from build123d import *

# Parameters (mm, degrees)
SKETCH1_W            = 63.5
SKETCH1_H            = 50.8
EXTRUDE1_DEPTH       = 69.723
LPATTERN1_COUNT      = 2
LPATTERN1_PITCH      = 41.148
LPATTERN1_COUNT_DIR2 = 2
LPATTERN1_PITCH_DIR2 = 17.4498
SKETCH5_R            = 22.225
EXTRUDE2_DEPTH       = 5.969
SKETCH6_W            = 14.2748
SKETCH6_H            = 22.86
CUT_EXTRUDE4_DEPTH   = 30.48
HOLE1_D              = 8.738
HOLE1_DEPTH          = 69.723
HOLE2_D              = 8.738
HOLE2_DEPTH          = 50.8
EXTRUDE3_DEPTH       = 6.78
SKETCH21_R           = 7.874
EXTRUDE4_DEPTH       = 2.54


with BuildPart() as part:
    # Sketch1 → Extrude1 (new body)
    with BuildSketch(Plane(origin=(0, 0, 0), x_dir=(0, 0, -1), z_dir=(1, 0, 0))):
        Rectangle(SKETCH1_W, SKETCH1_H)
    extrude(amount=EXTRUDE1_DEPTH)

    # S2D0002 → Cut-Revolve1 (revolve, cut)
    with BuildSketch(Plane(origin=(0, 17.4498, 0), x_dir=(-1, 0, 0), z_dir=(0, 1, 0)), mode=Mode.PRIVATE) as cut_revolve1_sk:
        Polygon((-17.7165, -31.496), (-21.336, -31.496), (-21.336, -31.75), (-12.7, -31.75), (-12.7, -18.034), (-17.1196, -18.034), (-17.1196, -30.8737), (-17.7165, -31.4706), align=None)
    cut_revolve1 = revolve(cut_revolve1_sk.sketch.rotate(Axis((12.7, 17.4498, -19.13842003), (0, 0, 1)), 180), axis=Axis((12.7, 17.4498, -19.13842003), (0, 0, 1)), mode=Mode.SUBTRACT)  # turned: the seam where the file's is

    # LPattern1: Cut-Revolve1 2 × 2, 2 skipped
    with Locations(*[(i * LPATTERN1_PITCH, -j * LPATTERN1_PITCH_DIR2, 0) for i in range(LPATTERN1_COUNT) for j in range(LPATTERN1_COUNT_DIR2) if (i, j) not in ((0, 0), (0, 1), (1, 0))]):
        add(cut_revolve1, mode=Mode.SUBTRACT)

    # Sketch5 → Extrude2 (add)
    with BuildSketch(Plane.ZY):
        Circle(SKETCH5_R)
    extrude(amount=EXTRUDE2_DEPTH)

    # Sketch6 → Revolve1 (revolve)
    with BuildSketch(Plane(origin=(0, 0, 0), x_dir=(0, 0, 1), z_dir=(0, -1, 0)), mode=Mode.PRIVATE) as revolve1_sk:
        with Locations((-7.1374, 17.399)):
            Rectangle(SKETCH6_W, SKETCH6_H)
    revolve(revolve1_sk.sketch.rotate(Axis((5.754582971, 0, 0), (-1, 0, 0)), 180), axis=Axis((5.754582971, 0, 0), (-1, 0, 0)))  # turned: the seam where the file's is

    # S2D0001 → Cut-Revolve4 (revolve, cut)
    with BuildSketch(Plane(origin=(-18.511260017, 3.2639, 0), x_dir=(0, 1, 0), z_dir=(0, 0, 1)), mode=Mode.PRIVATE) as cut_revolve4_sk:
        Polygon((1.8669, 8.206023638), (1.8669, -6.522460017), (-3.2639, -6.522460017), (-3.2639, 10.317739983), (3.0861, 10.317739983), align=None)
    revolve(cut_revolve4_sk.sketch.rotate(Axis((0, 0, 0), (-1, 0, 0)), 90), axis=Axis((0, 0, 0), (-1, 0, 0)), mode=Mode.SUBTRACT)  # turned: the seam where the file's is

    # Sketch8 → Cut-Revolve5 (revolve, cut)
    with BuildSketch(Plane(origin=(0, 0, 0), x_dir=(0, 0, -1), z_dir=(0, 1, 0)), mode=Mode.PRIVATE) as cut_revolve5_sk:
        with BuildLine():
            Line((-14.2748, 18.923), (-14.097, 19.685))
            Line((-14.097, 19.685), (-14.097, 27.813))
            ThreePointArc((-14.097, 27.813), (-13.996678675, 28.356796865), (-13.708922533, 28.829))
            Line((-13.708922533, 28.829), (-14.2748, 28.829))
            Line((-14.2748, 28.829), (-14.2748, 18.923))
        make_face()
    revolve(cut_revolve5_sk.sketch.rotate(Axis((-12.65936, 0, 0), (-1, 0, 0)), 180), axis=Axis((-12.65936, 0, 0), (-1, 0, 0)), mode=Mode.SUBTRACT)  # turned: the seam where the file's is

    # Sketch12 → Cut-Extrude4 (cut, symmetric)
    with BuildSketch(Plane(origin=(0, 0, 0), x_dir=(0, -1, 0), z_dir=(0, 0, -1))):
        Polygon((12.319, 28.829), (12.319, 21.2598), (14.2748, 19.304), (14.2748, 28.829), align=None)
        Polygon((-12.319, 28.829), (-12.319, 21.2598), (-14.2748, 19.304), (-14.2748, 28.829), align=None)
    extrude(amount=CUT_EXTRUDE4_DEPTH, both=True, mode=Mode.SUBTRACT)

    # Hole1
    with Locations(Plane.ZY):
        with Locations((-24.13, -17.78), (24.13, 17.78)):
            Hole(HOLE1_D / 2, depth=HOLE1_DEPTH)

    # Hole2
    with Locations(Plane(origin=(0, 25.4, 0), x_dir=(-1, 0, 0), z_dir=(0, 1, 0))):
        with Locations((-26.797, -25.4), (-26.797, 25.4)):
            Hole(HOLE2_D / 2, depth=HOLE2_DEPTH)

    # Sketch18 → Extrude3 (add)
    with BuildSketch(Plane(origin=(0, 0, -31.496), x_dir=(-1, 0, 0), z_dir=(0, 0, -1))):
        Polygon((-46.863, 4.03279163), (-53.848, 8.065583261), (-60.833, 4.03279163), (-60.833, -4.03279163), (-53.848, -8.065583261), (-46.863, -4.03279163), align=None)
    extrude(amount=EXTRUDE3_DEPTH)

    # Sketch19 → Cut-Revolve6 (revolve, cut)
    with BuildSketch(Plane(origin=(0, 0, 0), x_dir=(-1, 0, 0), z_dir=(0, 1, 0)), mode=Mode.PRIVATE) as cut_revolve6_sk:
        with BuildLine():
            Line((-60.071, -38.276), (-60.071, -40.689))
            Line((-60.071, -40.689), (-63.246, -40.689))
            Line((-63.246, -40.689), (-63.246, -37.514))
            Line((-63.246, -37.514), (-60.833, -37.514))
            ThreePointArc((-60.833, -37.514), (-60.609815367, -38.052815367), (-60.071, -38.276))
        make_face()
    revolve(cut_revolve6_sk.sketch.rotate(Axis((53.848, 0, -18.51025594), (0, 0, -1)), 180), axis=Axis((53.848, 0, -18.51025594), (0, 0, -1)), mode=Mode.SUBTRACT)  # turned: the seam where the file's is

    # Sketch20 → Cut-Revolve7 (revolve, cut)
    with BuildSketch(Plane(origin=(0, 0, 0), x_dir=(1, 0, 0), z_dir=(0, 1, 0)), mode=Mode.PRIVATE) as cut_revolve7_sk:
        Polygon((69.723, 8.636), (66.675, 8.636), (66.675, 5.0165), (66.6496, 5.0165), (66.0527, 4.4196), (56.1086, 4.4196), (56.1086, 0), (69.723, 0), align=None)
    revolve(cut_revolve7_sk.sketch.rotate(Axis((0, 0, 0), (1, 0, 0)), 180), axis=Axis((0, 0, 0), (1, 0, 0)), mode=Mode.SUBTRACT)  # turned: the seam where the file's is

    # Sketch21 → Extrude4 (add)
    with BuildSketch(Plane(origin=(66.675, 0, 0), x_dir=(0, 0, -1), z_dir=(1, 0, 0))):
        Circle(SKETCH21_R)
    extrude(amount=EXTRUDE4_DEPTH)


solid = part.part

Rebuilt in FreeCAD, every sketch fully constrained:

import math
import FreeCAD as App
import Part
import Sketcher
Q = App.Units.Quantity

doc = App.newDocument("Part")
body = doc.addObject("PartDesign::Body", "Body")

# Sketch on YZ plane
sketch1 = doc.addObject("Sketcher::SketchObject", "Sketch")
body.addObject(sketch1)
sketch1.AttachmentSupport = (doc.YZ_Plane, [""])
sketch1.MapMode = "FlatFace"
sketch1.addGeometry(Part.LineSegment(App.Vector(25, 32, 0), App.Vector(-25, 32, 0)), False)
sketch1.addGeometry(Part.LineSegment(App.Vector(-25, 32, 0), App.Vector(-25, -32, 0)), False)
sketch1.addGeometry(Part.LineSegment(App.Vector(-25, -32, 0), App.Vector(25, -32, 0)), False)
sketch1.addGeometry(Part.LineSegment(App.Vector(25, -32, 0), App.Vector(25, 32, 0)), False)
sketch1.addConstraint(Sketcher.Constraint("Coincident", 0, 2, 1, 1))
sketch1.addConstraint(Sketcher.Constraint("Coincident", 1, 2, 2, 1))
sketch1.addConstraint(Sketcher.Constraint("Coincident", 2, 2, 3, 1))
sketch1.addConstraint(Sketcher.Constraint("Coincident", 3, 2, 0, 1))
sketch1.addConstraint(Sketcher.Constraint("Horizontal", 0))
sketch1.addConstraint(Sketcher.Constraint("Vertical", 1))
sketch1.addConstraint(Sketcher.Constraint("Horizontal", 2))
sketch1.addConstraint(Sketcher.Constraint("Vertical", 3))
sketch1.addConstraint(Sketcher.Constraint("Symmetric", 0, 2, 2, 2, -1, 1))
sketch1.addConstraint(Sketcher.Constraint("DistanceX", 0, 2, 0, 1, Q("2 in")))
sketch1.addConstraint(Sketcher.Constraint("DistanceY", 1, 2, 1, 1, Q("2.5 in")))
pad1 = doc.addObject("PartDesign::Pad", "Pad")
body.addObject(pad1)
pad1.Profile = sketch1
pad1.Length = Q("2.745 in")

# Sketch on XZ plane
sketch2 = doc.addObject("Sketcher::SketchObject", "Sketch001")
body.addObject(sketch2)
sketch2.AttachmentSupport = (doc.XZ_Plane, [""])
sketch2.MapMode = "FlatFace"
sketch2.AttachmentOffset = App.Placement(App.Vector(0, 0, -0.687 * 25.4), App.Rotation())
sketch2.addGeometry(Part.LineSegment(App.Vector(17.716, -31.496, 0), App.Vector(21.336, -31.496, 0)), False)
sketch2.addGeometry(Part.LineSegment(App.Vector(21.336, -31.496, 0), App.Vector(21.336, -31.75, 0)), False)
sketch2.addGeometry(Part.LineSegment(App.Vector(21.336, -31.75, 0), App.Vector(12.7, -31.75, 0)), False)
sketch2.addGeometry(Part.LineSegment(App.Vector(12.7, -31.75, 0), App.Vector(12.7, -18.034, 0)), False)
sketch2.addGeometry(Part.LineSegment(App.Vector(12.7, -18.034, 0), App.Vector(17.12, -18.034, 0)), False)
sketch2.addGeometry(Part.LineSegment(App.Vector(17.12, -18.034, 0), App.Vector(17.12, -30.874, 0)), False)
sketch2.addGeometry(Part.LineSegment(App.Vector(17.12, -30.874, 0), App.Vector(17.716, -31.471, 0)), False)
sketch2.addGeometry(Part.LineSegment(App.Vector(17.716, -31.471, 0), App.Vector(17.716, -31.496, 0)), False)
sketch2.addGeometry(Part.LineSegment(App.Vector(12.7, -31.75, 0), App.Vector(12.7, -18.034, 0)), True)  # axis
sketch2.addConstraint(Sketcher.Constraint("Coincident", 0, 2, 1, 1))
sketch2.addConstraint(Sketcher.Constraint("Coincident", 1, 2, 2, 1))
sketch2.addConstraint(Sketcher.Constraint("Coincident", 2, 2, 3, 1))
sketch2.addConstraint(Sketcher.Constraint("Coincident", 3, 2, 4, 1))
sketch2.addConstraint(Sketcher.Constraint("Coincident", 4, 2, 5, 1))
sketch2.addConstraint(Sketcher.Constraint("Coincident", 5, 2, 6, 1))
sketch2.addConstraint(Sketcher.Constraint("Coincident", 6, 2, 7, 1))
sketch2.addConstraint(Sketcher.Constraint("Coincident", 7, 2, 0, 1))
sketch2.addConstraint(Sketcher.Constraint("Horizontal", 0))
sketch2.addConstraint(Sketcher.Constraint("Vertical", 1))
sketch2.addConstraint(Sketcher.Constraint("Horizontal", 2))
sketch2.addConstraint(Sketcher.Constraint("Vertical", 3))
sketch2.addConstraint(Sketcher.Constraint("Horizontal", 4))
sketch2.addConstraint(Sketcher.Constraint("Vertical", 5))
sketch2.addConstraint(Sketcher.Constraint("Vertical", 7))
sketch2.addConstraint(Sketcher.Constraint("Vertical", 8))
sketch2.addConstraint(Sketcher.Constraint("Coincident", 8, 1, 2, 2))
sketch2.addConstraint(Sketcher.Constraint("Horizontal", 4, 2, 8, 2))
sketch2.addConstraint(Sketcher.Constraint("Angle", 6, Q("-45 deg")))
sketch2.addConstraint(Sketcher.Constraint("DistanceX", 2, 2, 2, 1, Q("0.34 in")))
sketch2.addConstraint(Sketcher.Constraint("DistanceY", 1, 2, 1, 1, Q("0.01 in")))
sketch2.addConstraint(Sketcher.Constraint("DistanceY", 3, 1, 3, 2, Q("0.54 in")))
sketch2.addConstraint(Sketcher.Constraint("DistanceX", -1, 1, 2, 2, Q("0.5 in")))
sketch2.addConstraint(Sketcher.Constraint("DistanceX", 4, 1, 4, 2, Q("0.174 in")))
sketch2.addConstraint(Sketcher.Constraint("DistanceY", 7, 2, 7, 1, Q("0.001 in")))
sketch2.addConstraint(Sketcher.Constraint("DistanceY", 0, 2, -1, 1, Q("1.24 in")))
sketch2.addConstraint(Sketcher.Constraint("DistanceX", 0, 1, 0, 2, Q("0.1425 in")))
groove = doc.addObject("PartDesign::Groove", "Groove")
body.addObject(groove)
groove.Profile = sketch2
groove.ReferenceAxis = (sketch2, ["Axis0"])
groove.Angle = 360
doc.recompute()

datumline = doc.addObject("PartDesign::Line", "DatumLine")
body.addObject(datumline)
datumline.Placement = App.Placement(App.Vector(0, 0, 0), App.Rotation(App.Vector(0, 0, 1), App.Vector(0.920637496, -0.390418494, 0)))
linearpattern = doc.addObject("PartDesign::LinearPattern", "LinearPattern")
body.addObject(linearpattern)
linearpattern.Originals = [groove]
linearpattern.Direction = (datumline, [""])
linearpattern.Mode = "offset"
linearpattern.Offset = 44.695116
linearpattern.Occurrences = 2
body.Tip = linearpattern

# Sketch on YZ plane
sketch3 = doc.addObject("Sketcher::SketchObject", "Sketch002")
body.addObject(sketch3)
sketch3.AttachmentSupport = (doc.YZ_Plane, [""])
sketch3.MapMode = "FlatFace"
sketch3.addGeometry(Part.Circle(App.Vector(0, 0, 0), App.Vector(0, 0, 1), 22), False)
sketch3.addConstraint(Sketcher.Constraint("Coincident", 0, 3, -1, 1))
sketch3.addConstraint(Sketcher.Constraint("Diameter", 0, Q("1.75 in")))
pad2 = doc.addObject("PartDesign::Pad", "Pad001")
body.addObject(pad2)
pad2.Profile = sketch3
pad2.Length = Q("0.235 in")
pad2.Reversed = True

# Sketch on XZ plane
sketch4 = doc.addObject("Sketcher::SketchObject", "Sketch003")
body.addObject(sketch4)
sketch4.AttachmentSupport = (doc.XZ_Plane, [""])
sketch4.MapMode = "FlatFace"
sketch4.addGeometry(Part.LineSegment(App.Vector(-29, -14, 0), App.Vector(-6, -14, 0)), False)
sketch4.addGeometry(Part.LineSegment(App.Vector(-6, -14, 0), App.Vector(-6, 0, 0)), False)
sketch4.addGeometry(Part.LineSegment(App.Vector(-6, 0, 0), App.Vector(-29, 0, 0)), False)
sketch4.addGeometry(Part.LineSegment(App.Vector(-29, 0, 0), App.Vector(-29, -14, 0)), False)
sketch4.addConstraint(Sketcher.Constraint("Coincident", 0, 2, 1, 1))
sketch4.addConstraint(Sketcher.Constraint("Coincident", 1, 2, 2, 1))
sketch4.addConstraint(Sketcher.Constraint("Coincident", 2, 2, 3, 1))
sketch4.addConstraint(Sketcher.Constraint("Coincident", 3, 2, 0, 1))
sketch4.addConstraint(Sketcher.Constraint("Horizontal", 0))
sketch4.addConstraint(Sketcher.Constraint("Vertical", 1))
sketch4.addConstraint(Sketcher.Constraint("Horizontal", 2))
sketch4.addConstraint(Sketcher.Constraint("Vertical", 3))
sketch4.addConstraint(Sketcher.Constraint("PointOnObject", 1, 2, -1))
sketch4.addConstraint(Sketcher.Constraint("DistanceX", 0, 1, 0, 2, Q("0.9 in")))
sketch4.addConstraint(Sketcher.Constraint("DistanceY", 1, 1, 1, 2, Q("0.562 in")))
sketch4.addConstraint(Sketcher.Constraint("DistanceX", 0, 2, -1, 1, Q("0.235 in")))
revolution = doc.addObject("PartDesign::Revolution", "Revolution")
body.addObject(revolution)
revolution.Profile = sketch4
revolution.ReferenceAxis = (sketch4, ["H_Axis"])
revolution.Angle = 360

# Sketch on XY plane
sketch5 = doc.addObject("Sketcher::SketchObject", "Sketch004")
body.addObject(sketch5)
sketch5.AttachmentSupport = (doc.XY_Plane, [""])
sketch5.MapMode = "FlatFace"
sketch5.addGeometry(Part.LineSegment(App.Vector(-12, 5.1, 0), App.Vector(-26.7, 5.1, 0)), False)
sketch5.addGeometry(Part.LineSegment(App.Vector(-26.7, 5.1, 0), App.Vector(-28.8, 6.3, 0)), False)
sketch5.addGeometry(Part.LineSegment(App.Vector(-28.8, 6.3, 0), App.Vector(-28.8, 0, 0)), False)
sketch5.addGeometry(Part.LineSegment(App.Vector(-28.8, 0, 0), App.Vector(-12, 0, 0)), False)
sketch5.addGeometry(Part.LineSegment(App.Vector(-12, 0, 0), App.Vector(-12, 5.1, 0)), False)
sketch5.addConstraint(Sketcher.Constraint("Coincident", 0, 2, 1, 1))
sketch5.addConstraint(Sketcher.Constraint("Coincident", 1, 2, 2, 1))
sketch5.addConstraint(Sketcher.Constraint("Coincident", 2, 2, 3, 1))
sketch5.addConstraint(Sketcher.Constraint("Coincident", 3, 2, 4, 1))
sketch5.addConstraint(Sketcher.Constraint("Coincident", 4, 2, 0, 1))
sketch5.addConstraint(Sketcher.Constraint("Horizontal", 0))
sketch5.addConstraint(Sketcher.Constraint("Vertical", 2))
sketch5.addConstraint(Sketcher.Constraint("Horizontal", 3))
sketch5.addConstraint(Sketcher.Constraint("Vertical", 4))
sketch5.addConstraint(Sketcher.Constraint("PointOnObject", 2, 2, -1))
sketch5.addConstraint(Sketcher.Constraint("Angle", 1, Q("150 deg")))
sketch5.addConstraint(Sketcher.Constraint("DistanceY", 2, 2, 2, 1, Q("0.25 in")))
sketch5.addConstraint(Sketcher.Constraint("DistanceX", 3, 1, 3, 2, Q("0.663 in")))
sketch5.addConstraint(Sketcher.Constraint("DistanceY", 4, 1, 4, 2, Q("0.202 in")))
sketch5.addConstraint(Sketcher.Constraint("DistanceX", 1, 2, -1, 1, Q("1.135 in")))
groove2 = doc.addObject("PartDesign::Groove", "Groove001")
body.addObject(groove2)
groove2.Profile = sketch5
groove2.ReferenceAxis = (sketch5, ["H_Axis"])
groove2.Angle = 360

# Sketch on XZ plane
sketch6 = doc.addObject("Sketcher::SketchObject", "Sketch005")
body.addObject(sketch6)
sketch6.AttachmentSupport = (doc.XZ_Plane, [""])
sketch6.MapMode = "FlatFace"
sketch6.addGeometry(Part.LineSegment(App.Vector(-18.9, 14.3, 0), App.Vector(-19.7, 14.1, 0)), False)
sketch6.addGeometry(Part.LineSegment(App.Vector(-19.7, 14.1, 0), App.Vector(-27.8, 14.1, 0)), False)
sketch6.addGeometry(Part.ArcOfCircle(Part.Circle(App.Vector(-27.8, 12.6, 0), App.Vector(0, 0, 1), 1.5), math.radians(90), math.radians(132)), False)
sketch6.addGeometry(Part.LineSegment(App.Vector(-28.8, 13.7, 0), App.Vector(-28.8, 14.3, 0)), False)
sketch6.addGeometry(Part.LineSegment(App.Vector(-28.8, 14.3, 0), App.Vector(-18.9, 14.3, 0)), False)
sketch6.addConstraint(Sketcher.Constraint("Coincident", 0, 2, 1, 1))
sketch6.addConstraint(Sketcher.Constraint("Tangent", 1, 2, 2, 1))
sketch6.addConstraint(Sketcher.Constraint("Coincident", 2, 2, 3, 1))
sketch6.addConstraint(Sketcher.Constraint("Coincident", 3, 2, 4, 1))
sketch6.addConstraint(Sketcher.Constraint("Coincident", 4, 2, 0, 1))
sketch6.addConstraint(Sketcher.Constraint("Horizontal", 1))
sketch6.addConstraint(Sketcher.Constraint("Vertical", 3))
sketch6.addConstraint(Sketcher.Constraint("Horizontal", 4))
sketch6.addConstraint(Sketcher.Constraint("Radius", 2, Q("0.06 in")))
sketch6.addConstraint(Sketcher.Constraint("DistanceX", 1, 2, 1, 1, Q("0.32 in")))
sketch6.addConstraint(Sketcher.Constraint("DistanceX", 4, 1, 4, 2, Q("0.39 in")))
sketch6.addConstraint(Sketcher.Constraint("DistanceX", 2, 2, 1, 2, Q("0.04 in")))
sketch6.addConstraint(Sketcher.Constraint("DistanceX", 2, 3, -1, 1, Q("1.095 in")))
sketch6.addConstraint(Sketcher.Constraint("DistanceY", -1, 1, 2, 3, Q("0.495 in")))
sketch6.addConstraint(Sketcher.Constraint("DistanceY", -1, 1, 3, 2, Q("0.562 in")))
groove3 = doc.addObject("PartDesign::Groove", "Groove002")
body.addObject(groove3)
groove3.Profile = sketch6
groove3.ReferenceAxis = (sketch6, ["H_Axis"])
groove3.Angle = 360

# Sketch on XY plane
sketch7 = doc.addObject("Sketcher::SketchObject", "Sketch006")
body.addObject(sketch7)
sketch7.AttachmentSupport = (doc.XY_Plane, [""])
sketch7.MapMode = "FlatFace"
sketch7.addGeometry(Part.LineSegment(App.Vector(-28.8, -12.3, 0), App.Vector(-21.3, -12.3, 0)), False)
sketch7.addGeometry(Part.LineSegment(App.Vector(-21.3, -12.3, 0), App.Vector(-19.3, -14.3, 0)), False)
sketch7.addGeometry(Part.LineSegment(App.Vector(-19.3, -14.3, 0), App.Vector(-28.8, -14.3, 0)), False)
sketch7.addGeometry(Part.LineSegment(App.Vector(-28.8, -14.3, 0), App.Vector(-28.8, -12.3, 0)), False)
sketch7.addGeometry(Part.LineSegment(App.Vector(-21.3, 12.3, 0), App.Vector(-28.8, 12.3, 0)), False)
sketch7.addGeometry(Part.LineSegment(App.Vector(-28.8, 12.3, 0), App.Vector(-28.8, 14.3, 0)), False)
sketch7.addGeometry(Part.LineSegment(App.Vector(-28.8, 14.3, 0), App.Vector(-19.3, 14.3, 0)), False)
sketch7.addGeometry(Part.LineSegment(App.Vector(-19.3, 14.3, 0), App.Vector(-21.3, 12.3, 0)), False)
sketch7.addConstraint(Sketcher.Constraint("Coincident", 0, 2, 1, 1))
sketch7.addConstraint(Sketcher.Constraint("Coincident", 1, 2, 2, 1))
sketch7.addConstraint(Sketcher.Constraint("Coincident", 2, 2, 3, 1))
sketch7.addConstraint(Sketcher.Constraint("Coincident", 3, 2, 0, 1))
sketch7.addConstraint(Sketcher.Constraint("Coincident", 4, 2, 5, 1))
sketch7.addConstraint(Sketcher.Constraint("Coincident", 5, 2, 6, 1))
sketch7.addConstraint(Sketcher.Constraint("Coincident", 6, 2, 7, 1))
sketch7.addConstraint(Sketcher.Constraint("Coincident", 7, 2, 4, 1))
sketch7.addConstraint(Sketcher.Constraint("Horizontal", 0))
sketch7.addConstraint(Sketcher.Constraint("Horizontal", 2))
sketch7.addConstraint(Sketcher.Constraint("Vertical", 3))
sketch7.addConstraint(Sketcher.Constraint("Horizontal", 4))
sketch7.addConstraint(Sketcher.Constraint("Vertical", 5))
sketch7.addConstraint(Sketcher.Constraint("Horizontal", 6))
sketch7.addConstraint(Sketcher.Constraint("Symmetric", 3, 2, 4, 2, -1))
sketch7.addConstraint(Sketcher.Constraint("Symmetric", 1, 2, 6, 2, -1))
sketch7.addConstraint(Sketcher.Constraint("Perpendicular", 1, 7))
sketch7.addConstraint(Sketcher.Constraint("Vertical", 0, 2, 7, 2))
sketch7.addConstraint(Sketcher.Constraint("DistanceX", 0, 1, 0, 2, Q("0.298 in")))
sketch7.addConstraint(Sketcher.Constraint("DistanceX", 2, 2, 2, 1, Q("0.375 in")))
sketch7.addConstraint(Sketcher.Constraint("DistanceX", 1, 2, -1, 1, Q("0.76 in")))
sketch7.addConstraint(Sketcher.Constraint("DistanceY", 3, 2, 4, 2, Q("0.97 in")))
pocket1 = doc.addObject("PartDesign::Pocket", "Pocket")
body.addObject(pocket1)
pocket1.Profile = sketch7
pocket1.Length = Q("2.4 in")
pocket1.Midplane = True

# Sketch on YZ plane
sketch8 = doc.addObject("Sketcher::SketchObject", "Sketch007")
body.addObject(sketch8)
sketch8.AttachmentSupport = (doc.YZ_Plane, [""])
sketch8.MapMode = "FlatFace"
sketch8.addGeometry(Part.Circle(App.Vector(-17.8, -24.1, 0), App.Vector(0, 0, 1), 4.4), False)
sketch8.addGeometry(Part.Circle(App.Vector(17.8, 24.1, 0), App.Vector(0, 0, 1), 4.4), False)
sketch8.addConstraint(Sketcher.Constraint("Equal", 0, 1))
sketch8.addConstraint(Sketcher.Constraint("Symmetric", 0, 3, 1, 3, -1, 1))
sketch8.addConstraint(Sketcher.Constraint("DistanceX", 0, 3, -1, 1, Q("0.7 in")))
sketch8.addConstraint(Sketcher.Constraint("DistanceY", 0, 3, 1, 3, Q("1.9 in")))
sketch8.addConstraint(Sketcher.Constraint("Diameter", 0, 8.738))
doc.recompute()
hole = doc.addObject("PartDesign::Hole", "Hole")
body.addObject(hole)
hole.Profile = sketch8
hole.ThreadType = "None"
hole.Diameter = 8.738
hole.DepthType = "Dimension"
hole.Depth = Q("2.745 in")
hole.DrillPoint = "Flat"
hole.Reversed = True

# Sketch on XZ plane
sketch9 = doc.addObject("Sketcher::SketchObject", "Sketch008")
body.addObject(sketch9)
sketch9.AttachmentSupport = (doc.XZ_Plane, [""])
sketch9.MapMode = "FlatFace"
sketch9.AttachmentOffset = App.Placement(App.Vector(0, 0, -1 * 25.4), App.Rotation())
sketch9.addGeometry(Part.Circle(App.Vector(26.8, -25.4, 0), App.Vector(0, 0, 1), 4.4), False)
sketch9.addGeometry(Part.Circle(App.Vector(26.8, 25.4, 0), App.Vector(0, 0, 1), 4.4), False)
sketch9.addConstraint(Sketcher.Constraint("Equal", 0, 1))
sketch9.addConstraint(Sketcher.Constraint("Symmetric", 0, 3, 1, 3, -1))
sketch9.addConstraint(Sketcher.Constraint("DistanceY", 0, 3, -1, 1, Q("1 in")))
sketch9.addConstraint(Sketcher.Constraint("Diameter", 0, 8.738))
sketch9.addConstraint(Sketcher.Constraint("DistanceX", -1, 1, 0, 3, Q("1.055 in")))
doc.recompute()
hole2 = doc.addObject("PartDesign::Hole", "Hole001")
body.addObject(hole2)
hole2.Profile = sketch9
hole2.ThreadType = "None"
hole2.Diameter = 8.738
hole2.DepthType = "Dimension"
hole2.Depth = Q("2 in")
hole2.DrillPoint = "Flat"
hole2.Reversed = True

# Sketch on XY plane
sketch10 = doc.addObject("Sketcher::SketchObject", "Sketch009")
body.addObject(sketch10)
sketch10.AttachmentSupport = (doc.XY_Plane, [""])
sketch10.MapMode = "FlatFace"
sketch10.AttachmentOffset = App.Placement(App.Vector(0, 0, -1.24 * 25.4), App.Rotation())
sketch10.addGeometry(Part.LineSegment(App.Vector(47, 4, 0), App.Vector(54, 8, 0)), False)
sketch10.addGeometry(Part.LineSegment(App.Vector(54, 8, 0), App.Vector(61, 4, 0)), False)
sketch10.addGeometry(Part.LineSegment(App.Vector(61, 4, 0), App.Vector(61, -4, 0)), False)
sketch10.addGeometry(Part.LineSegment(App.Vector(61, -4, 0), App.Vector(54, -8, 0)), False)
sketch10.addGeometry(Part.LineSegment(App.Vector(54, -8, 0), App.Vector(47, -4, 0)), False)
sketch10.addGeometry(Part.LineSegment(App.Vector(47, -4, 0), App.Vector(47, 4, 0)), False)
sketch10.addConstraint(Sketcher.Constraint("Coincident", 0, 2, 1, 1))
sketch10.addConstraint(Sketcher.Constraint("Coincident", 1, 2, 2, 1))
sketch10.addConstraint(Sketcher.Constraint("Coincident", 2, 2, 3, 1))
sketch10.addConstraint(Sketcher.Constraint("Coincident", 3, 2, 4, 1))
sketch10.addConstraint(Sketcher.Constraint("Coincident", 4, 2, 5, 1))
sketch10.addConstraint(Sketcher.Constraint("Coincident", 5, 2, 0, 1))
sketch10.addConstraint(Sketcher.Constraint("Vertical", 2))
sketch10.addConstraint(Sketcher.Constraint("Vertical", 5))
sketch10.addConstraint(Sketcher.Constraint("Symmetric", 0, 2, 3, 2, -1))
sketch10.addConstraint(Sketcher.Constraint("Parallel", 0, 3))
sketch10.addConstraint(Sketcher.Constraint("Parallel", 1, 4))
sketch10.addConstraint(Sketcher.Constraint("Horizontal", 2, 2, 4, 2))
sketch10.addConstraint(Sketcher.Constraint("Horizontal", 1, 2, 5, 2))
sketch10.addConstraint(Sketcher.Constraint("Angle", 0, Q("30 deg")))
sketch10.addConstraint(Sketcher.Constraint("DistanceX", -1, 1, 0, 2, Q("2.12 in")))
sketch10.addConstraint(Sketcher.Constraint("DistanceX", 4, 2, 2, 2, Q("0.55 in")))
sketch10.addConstraint(Sketcher.Constraint("DistanceY", 2, 2, 2, 1, 8.065583))
pad3 = doc.addObject("PartDesign::Pad", "Pad002")
body.addObject(pad3)
pad3.Profile = sketch10
pad3.Length = 6.78
pad3.Reversed = True

# Sketch on XZ plane
sketch11 = doc.addObject("Sketcher::SketchObject", "Sketch010")
body.addObject(sketch11)
sketch11.AttachmentSupport = (doc.XZ_Plane, [""])
sketch11.MapMode = "FlatFace"
sketch11.addGeometry(Part.LineSegment(App.Vector(60.1, -40.7, 0), App.Vector(60.1, -38.3, 0)), False)
sketch11.addGeometry(Part.ArcOfCircle(Part.Circle(App.Vector(60.1, -37.5, 0), App.Vector(0, 0, 1), 0.8), math.radians(-90), math.radians(0)), False)
sketch11.addGeometry(Part.LineSegment(App.Vector(60.8, -37.5, 0), App.Vector(63.2, -37.5, 0)), False)
sketch11.addGeometry(Part.LineSegment(App.Vector(63.2, -37.5, 0), App.Vector(63.2, -40.7, 0)), False)
sketch11.addGeometry(Part.LineSegment(App.Vector(63.2, -40.7, 0), App.Vector(60.1, -40.7, 0)), False)
sketch11.addGeometry(Part.LineSegment(App.Vector(53.8, -37.5, 0), App.Vector(53.8, -40.7, 0)), True)  # axis
sketch11.addConstraint(Sketcher.Constraint("Coincident", 0, 2, 1, 1))
sketch11.addConstraint(Sketcher.Constraint("Coincident", 1, 2, 2, 1))
sketch11.addConstraint(Sketcher.Constraint("Coincident", 2, 2, 3, 1))
sketch11.addConstraint(Sketcher.Constraint("Coincident", 3, 2, 4, 1))
sketch11.addConstraint(Sketcher.Constraint("Coincident", 4, 2, 0, 1))
sketch11.addConstraint(Sketcher.Constraint("Vertical", 0))
sketch11.addConstraint(Sketcher.Constraint("Horizontal", 2))
sketch11.addConstraint(Sketcher.Constraint("Vertical", 3))
sketch11.addConstraint(Sketcher.Constraint("Horizontal", 4))
sketch11.addConstraint(Sketcher.Constraint("Vertical", 5))
sketch11.addConstraint(Sketcher.Constraint("Horizontal", 2, 2, 5, 1))
sketch11.addConstraint(Sketcher.Constraint("Horizontal", 4, 2, 5, 2))
sketch11.addConstraint(Sketcher.Constraint("Vertical", 1, 3, 0, 2))
sketch11.addConstraint(Sketcher.Constraint("Equal", 2, 0))
sketch11.addConstraint(Sketcher.Constraint("Equal", 4, 3))
sketch11.addConstraint(Sketcher.Constraint("Radius", 1, Q("0.03 in")))
sketch11.addConstraint(Sketcher.Constraint("DistanceX", 2, 1, 2, 2, Q("0.095 in")))
sketch11.addConstraint(Sketcher.Constraint("DistanceX", -1, 1, 2, 2, Q("2.49 in")))
sketch11.addConstraint(Sketcher.Constraint("DistanceX", -1, 1, 5, 1, Q("2.12 in")))
sketch11.addConstraint(Sketcher.Constraint("DistanceY", 1, 3, -1, 1, 37.514))
groove4 = doc.addObject("PartDesign::Groove", "Groove003")
body.addObject(groove4)
groove4.Profile = sketch11
groove4.ReferenceAxis = (sketch11, ["Axis0"])
groove4.Angle = 360

# Sketch on XZ plane
sketch12 = doc.addObject("Sketcher::SketchObject", "Sketch011")
body.addObject(sketch12)
sketch12.AttachmentSupport = (doc.XZ_Plane, [""])
sketch12.MapMode = "FlatFace"
sketch12.addGeometry(Part.LineSegment(App.Vector(69.723, -8.636, 0), App.Vector(66.675, -8.636, 0)), False)
sketch12.addGeometry(Part.LineSegment(App.Vector(66.675, -8.636, 0), App.Vector(66.675, -5.016, 0)), False)
sketch12.addGeometry(Part.LineSegment(App.Vector(66.675, -5.016, 0), App.Vector(66.65, -5.016, 0)), False)
sketch12.addGeometry(Part.LineSegment(App.Vector(66.65, -5.016, 0), App.Vector(66.053, -4.42, 0)), False)
sketch12.addGeometry(Part.LineSegment(App.Vector(66.053, -4.42, 0), App.Vector(56.109, -4.42, 0)), False)
sketch12.addGeometry(Part.LineSegment(App.Vector(56.109, -4.42, 0), App.Vector(56.109, 0, 0)), False)
sketch12.addGeometry(Part.LineSegment(App.Vector(56.109, 0, 0), App.Vector(69.723, 0, 0)), False)
sketch12.addGeometry(Part.LineSegment(App.Vector(69.723, 0, 0), App.Vector(69.723, -8.636, 0)), False)
sketch12.addConstraint(Sketcher.Constraint("Coincident", 0, 2, 1, 1))
sketch12.addConstraint(Sketcher.Constraint("Coincident", 1, 2, 2, 1))
sketch12.addConstraint(Sketcher.Constraint("Coincident", 2, 2, 3, 1))
sketch12.addConstraint(Sketcher.Constraint("Coincident", 3, 2, 4, 1))
sketch12.addConstraint(Sketcher.Constraint("Coincident", 4, 2, 5, 1))
sketch12.addConstraint(Sketcher.Constraint("Coincident", 5, 2, 6, 1))
sketch12.addConstraint(Sketcher.Constraint("Coincident", 6, 2, 7, 1))
sketch12.addConstraint(Sketcher.Constraint("Coincident", 7, 2, 0, 1))
sketch12.addConstraint(Sketcher.Constraint("Horizontal", 0))
sketch12.addConstraint(Sketcher.Constraint("Vertical", 1))
sketch12.addConstraint(Sketcher.Constraint("Horizontal", 2))
sketch12.addConstraint(Sketcher.Constraint("Horizontal", 4))
sketch12.addConstraint(Sketcher.Constraint("Vertical", 5))
sketch12.addConstraint(Sketcher.Constraint("Horizontal", 6))
sketch12.addConstraint(Sketcher.Constraint("Vertical", 7))
sketch12.addConstraint(Sketcher.Constraint("PointOnObject", 5, 2, -1))
sketch12.addConstraint(Sketcher.Constraint("Angle", 3, Q("135 deg")))
sketch12.addConstraint(Sketcher.Constraint("DistanceX", 0, 2, 0, 1, Q("0.12 in")))
sketch12.addConstraint(Sketcher.Constraint("DistanceY", 7, 2, 7, 1, Q("0.34 in")))
sketch12.addConstraint(Sketcher.Constraint("DistanceX", 2, 2, 2, 1, Q("0.001 in")))
sketch12.addConstraint(Sketcher.Constraint("DistanceX", 6, 1, 6, 2, Q("0.536 in")))
sketch12.addConstraint(Sketcher.Constraint("DistanceY", 5, 1, 5, 2, Q("0.174 in")))
sketch12.addConstraint(Sketcher.Constraint("DistanceX", 4, 2, 4, 1, Q("0.3915 in")))
sketch12.addConstraint(Sketcher.Constraint("DistanceX", -1, 1, 0, 2, Q("2.625 in")))
groove5 = doc.addObject("PartDesign::Groove", "Groove004")
body.addObject(groove5)
groove5.Profile = sketch12
groove5.ReferenceAxis = (sketch12, ["H_Axis"])
groove5.Angle = 360

# Sketch on YZ plane
sketch13 = doc.addObject("Sketcher::SketchObject", "Sketch012")
body.addObject(sketch13)
sketch13.AttachmentSupport = (doc.YZ_Plane, [""])
sketch13.MapMode = "FlatFace"
sketch13.AttachmentOffset = App.Placement(App.Vector(0, 0, 2.625 * 25.4), App.Rotation())
sketch13.addGeometry(Part.Circle(App.Vector(0, 0, 0), App.Vector(0, 0, 1), 8), False)
sketch13.addConstraint(Sketcher.Constraint("Coincident", 0, 3, -1, 1))
sketch13.addConstraint(Sketcher.Constraint("Diameter", 0, Q("0.62 in")))
pad4 = doc.addObject("PartDesign::Pad", "Pad003")
body.addObject(pad4)
pad4.Profile = sketch13
pad4.Length = Q("0.1 in")

doc.recompute()
